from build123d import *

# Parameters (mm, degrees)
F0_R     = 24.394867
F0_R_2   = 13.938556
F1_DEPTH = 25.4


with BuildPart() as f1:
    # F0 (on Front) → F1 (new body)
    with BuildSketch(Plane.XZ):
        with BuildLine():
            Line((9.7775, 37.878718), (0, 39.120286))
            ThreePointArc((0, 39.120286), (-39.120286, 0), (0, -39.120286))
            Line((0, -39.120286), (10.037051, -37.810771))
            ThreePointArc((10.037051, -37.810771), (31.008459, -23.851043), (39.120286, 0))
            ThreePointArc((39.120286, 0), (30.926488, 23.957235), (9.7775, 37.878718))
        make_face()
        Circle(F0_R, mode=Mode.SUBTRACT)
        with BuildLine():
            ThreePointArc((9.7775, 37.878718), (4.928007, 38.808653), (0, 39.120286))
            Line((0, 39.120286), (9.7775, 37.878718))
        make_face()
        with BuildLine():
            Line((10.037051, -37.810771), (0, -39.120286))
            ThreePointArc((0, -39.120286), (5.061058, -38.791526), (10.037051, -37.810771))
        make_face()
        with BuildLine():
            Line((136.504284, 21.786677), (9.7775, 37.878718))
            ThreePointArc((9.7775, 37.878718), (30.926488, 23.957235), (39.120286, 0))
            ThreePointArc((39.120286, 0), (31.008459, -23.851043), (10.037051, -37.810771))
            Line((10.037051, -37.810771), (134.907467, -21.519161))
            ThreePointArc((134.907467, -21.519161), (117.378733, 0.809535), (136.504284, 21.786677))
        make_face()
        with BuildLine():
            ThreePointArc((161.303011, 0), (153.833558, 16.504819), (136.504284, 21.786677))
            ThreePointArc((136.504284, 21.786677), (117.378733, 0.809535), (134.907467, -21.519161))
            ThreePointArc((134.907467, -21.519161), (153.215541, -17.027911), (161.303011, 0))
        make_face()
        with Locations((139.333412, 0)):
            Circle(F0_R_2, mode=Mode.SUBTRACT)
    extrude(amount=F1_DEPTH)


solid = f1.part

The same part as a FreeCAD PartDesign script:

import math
import FreeCAD as App
import Part
import Sketcher
from FreeCAD import Vector
Q = App.Units.Quantity

doc = App.newDocument("Part")
body = doc.addObject("PartDesign::Body", "Body")

sketch1 = doc.addObject("Sketcher::SketchObject", "Sketch")
body.addObject(sketch1)
sketch1.AttachmentSupport = (doc.XZ_Plane, [""])
sketch1.MapMode = "FlatFace"
sketch1.addGeometry(Part.ArcOfCircle(Part.Circle(Vector(0, 0, 0), Vector(0, 0, 1), 39), math.radians(75.53), math.radians(90)), False)
sketch1.addGeometry(Part.ArcOfCircle(Part.Circle(Vector(0, 0, 0), Vector(0, 0, 1), 39), math.radians(90), math.radians(270)), False)
sketch1.addGeometry(Part.ArcOfCircle(Part.Circle(Vector(0, 0, 0), Vector(0, 0, 1), 39), math.radians(-90), math.radians(-75.13)), False)
sketch1.addGeometry(Part.LineSegment(Vector(10, -38, 0), Vector(135, -22, 0)), False)
sketch1.addGeometry(Part.ArcOfCircle(Part.Circle(Vector(139, 0, 0), Vector(0, 0, 1), 22), math.radians(-102), math.radians(0)), False)
sketch1.addGeometry(Part.ArcOfCircle(Part.Circle(Vector(139, 0, 0), Vector(0, 0, 1), 22), math.radians(0), math.radians(97)), False)
sketch1.addGeometry(Part.LineSegment(Vector(137, 22, 0), Vector(10, 38, 0)), False)
sketch1.addGeometry(Part.Circle(Vector(0, 0, 0), Vector(0, 0, 1), 24), False)
sketch1.addGeometry(Part.Circle(Vector(139, 0, 0), Vector(0, 0, 1), 14), False)
sketch1.addConstraint(Sketcher.Constraint("Tangent", 0, 2, 1, 1))
sketch1.addConstraint(Sketcher.Constraint("Tangent", 1, 2, 2, 1))
sketch1.addConstraint(Sketcher.Constraint("Coincident", 2, 2, 3, 1))
sketch1.addConstraint(Sketcher.Constraint("Coincident", 3, 2, 4, 1))
sketch1.addConstraint(Sketcher.Constraint("Tangent", 4, 2, 5, 1))
sketch1.addConstraint(Sketcher.Constraint("Coincident", 5, 2, 6, 1))
sketch1.addConstraint(Sketcher.Constraint("Coincident", 6, 2, 0, 1))
sketch1.addConstraint(Sketcher.Constraint("Coincident", 1, 3, -1, 1))
sketch1.addConstraint(Sketcher.Constraint("Coincident", 7, 3, -1, 1))
sketch1.addConstraint(Sketcher.Constraint("Coincident", 8, 3, 4, 3))
sketch1.addConstraint(Sketcher.Constraint("Equal", 4, 5))
sketch1.addConstraint(Sketcher.Constraint("PointOnObject", 4, 3, -1))
sketch1.addConstraint(Sketcher.Constraint("PointOnObject", 0, 2, -2))
sketch1.addConstraint(Sketcher.Constraint("PointOnObject", 1, 2, -2))
sketch1.addConstraint(Sketcher.Constraint("PointOnObject", 4, 2, -1))
sketch1.addConstraint(Sketcher.Constraint("Radius", 4, Q("21.9696 mm")))
sketch1.addConstraint(Sketcher.Constraint("Radius", 2, Q("39.12027 mm")))
sketch1.addConstraint(Sketcher.Constraint("Diameter", 7, Q("48.789734 mm")))
sketch1.addConstraint(Sketcher.Constraint("Diameter", 8, Q("27.877112 mm")))
sketch1.addConstraint(Sketcher.Constraint("Radius", 0, Q("39.120253 mm")))
sketch1.addConstraint(Sketcher.Constraint("Radius", 1, Q("39.120286 mm")))
sketch1.addConstraint(Sketcher.Constraint("Distance", 3, Q("125.928699 mm")))
sketch1.addConstraint(Sketcher.Constraint("Distance", 6, Q("127.744399 mm")))
sketch1.addConstraint(Sketcher.Constraint("DistanceX", -1, 1, 6, 2, Q("9.7775 mm")))
sketch1.addConstraint(Sketcher.Constraint("DistanceX", -1, 1, 4, 3, Q("139.333411 mm")))
sketch1.addConstraint(Sketcher.Constraint("DistanceX", -1, 1, 2, 2, Q("10.037051 mm")))
pad1 = doc.addObject("PartDesign::Pad", "Pad")
body.addObject(pad1)
pad1.Profile = sketch1
pad1.Length = Q("1 in")

doc.recompute()
